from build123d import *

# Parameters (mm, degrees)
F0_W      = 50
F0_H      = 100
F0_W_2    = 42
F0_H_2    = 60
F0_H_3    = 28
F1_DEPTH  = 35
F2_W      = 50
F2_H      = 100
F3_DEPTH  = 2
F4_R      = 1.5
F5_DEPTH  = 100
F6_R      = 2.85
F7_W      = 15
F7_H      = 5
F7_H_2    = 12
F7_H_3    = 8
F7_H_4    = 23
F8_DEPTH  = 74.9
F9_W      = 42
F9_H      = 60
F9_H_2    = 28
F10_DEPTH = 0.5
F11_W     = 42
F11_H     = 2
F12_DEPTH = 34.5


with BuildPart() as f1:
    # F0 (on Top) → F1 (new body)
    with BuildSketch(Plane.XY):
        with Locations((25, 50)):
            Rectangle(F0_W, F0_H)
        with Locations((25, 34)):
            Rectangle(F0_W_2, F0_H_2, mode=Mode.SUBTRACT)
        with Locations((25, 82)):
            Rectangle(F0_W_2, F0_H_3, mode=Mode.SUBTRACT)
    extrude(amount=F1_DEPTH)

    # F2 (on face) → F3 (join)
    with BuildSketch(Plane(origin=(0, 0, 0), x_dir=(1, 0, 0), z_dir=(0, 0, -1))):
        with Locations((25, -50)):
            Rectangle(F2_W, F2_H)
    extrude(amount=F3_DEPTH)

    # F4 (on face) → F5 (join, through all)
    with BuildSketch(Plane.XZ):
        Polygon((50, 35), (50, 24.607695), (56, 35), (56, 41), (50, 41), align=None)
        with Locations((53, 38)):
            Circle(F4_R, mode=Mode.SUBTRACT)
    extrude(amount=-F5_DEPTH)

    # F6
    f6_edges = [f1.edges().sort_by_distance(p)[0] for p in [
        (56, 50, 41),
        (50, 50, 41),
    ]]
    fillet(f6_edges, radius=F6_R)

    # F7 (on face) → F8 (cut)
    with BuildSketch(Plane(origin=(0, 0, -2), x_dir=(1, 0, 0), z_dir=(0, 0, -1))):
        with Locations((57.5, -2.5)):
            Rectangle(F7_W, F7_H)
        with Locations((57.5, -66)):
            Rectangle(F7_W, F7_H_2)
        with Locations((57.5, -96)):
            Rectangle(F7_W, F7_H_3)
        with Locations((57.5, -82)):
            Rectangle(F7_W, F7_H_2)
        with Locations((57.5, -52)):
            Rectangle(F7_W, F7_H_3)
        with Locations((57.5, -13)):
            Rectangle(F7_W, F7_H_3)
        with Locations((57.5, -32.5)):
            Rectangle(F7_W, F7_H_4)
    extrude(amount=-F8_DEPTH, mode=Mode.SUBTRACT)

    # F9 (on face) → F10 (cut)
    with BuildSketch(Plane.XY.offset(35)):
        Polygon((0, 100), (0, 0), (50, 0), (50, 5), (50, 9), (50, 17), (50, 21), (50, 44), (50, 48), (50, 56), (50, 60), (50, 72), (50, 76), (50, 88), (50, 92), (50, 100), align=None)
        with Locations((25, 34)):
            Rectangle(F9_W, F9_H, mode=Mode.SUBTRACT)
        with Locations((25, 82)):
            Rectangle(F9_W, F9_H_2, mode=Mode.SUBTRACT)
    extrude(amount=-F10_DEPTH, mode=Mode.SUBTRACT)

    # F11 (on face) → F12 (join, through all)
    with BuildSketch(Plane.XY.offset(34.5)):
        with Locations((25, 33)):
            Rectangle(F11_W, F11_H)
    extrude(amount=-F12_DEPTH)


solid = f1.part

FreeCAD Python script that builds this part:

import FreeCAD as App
import Part
import Sketcher
Q = App.Units.Quantity


def edges_at(feature, points):
    """Names of the edges that pass closest to the given points."""
    edges = feature.Shape.Edges
    near = lambda p: min(range(len(edges)), key=lambda i: edges[i].distToShape(Part.Vertex(*p))[0])
    return sorted({f"Edge{near(p) + 1}" for p in points})

doc = App.newDocument("Part")
body = doc.addObject("PartDesign::Body", "Body")

sketch1 = body.newObject("Sketcher::SketchObject", "Sketch")
sketch1.AttachmentSupport = (doc.getObject("XY_Plane"), [""])
sketch1.MapMode = "FlatFace"
sketch1.addGeometry(Part.LineSegment(App.Vector(0, 100, 0), App.Vector(0, 0, 0)), False)
sketch1.addGeometry(Part.LineSegment(App.Vector(0, 0, 0), App.Vector(50, 0, 0)), False)
sketch1.addGeometry(Part.LineSegment(App.Vector(50, 0, 0), App.Vector(50, 100, 0)), False)
sketch1.addGeometry(Part.LineSegment(App.Vector(50, 100, 0), App.Vector(0, 100, 0)), False)
sketch1.addGeometry(Part.LineSegment(App.Vector(46, 4, 0), App.Vector(4, 4, 0)), False)
sketch1.addGeometry(Part.LineSegment(App.Vector(4, 4, 0), App.Vector(4, 64, 0)), False)
sketch1.addGeometry(Part.LineSegment(App.Vector(4, 64, 0), App.Vector(46, 64, 0)), False)
sketch1.addGeometry(Part.LineSegment(App.Vector(46, 64, 0), App.Vector(46, 4, 0)), False)
sketch1.addGeometry(Part.LineSegment(App.Vector(46, 68, 0), App.Vector(4, 68, 0)), False)
sketch1.addGeometry(Part.LineSegment(App.Vector(4, 68, 0), App.Vector(4, 96, 0)), False)
sketch1.addGeometry(Part.LineSegment(App.Vector(4, 96, 0), App.Vector(46, 96, 0)), False)
sketch1.addGeometry(Part.LineSegment(App.Vector(46, 96, 0), App.Vector(46, 68, 0)), False)
sketch1.addConstraint(Sketcher.Constraint("Coincident", 0, 2, 1, 1))
sketch1.addConstraint(Sketcher.Constraint("Coincident", 1, 2, 2, 1))
sketch1.addConstraint(Sketcher.Constraint("Coincident", 2, 2, 3, 1))
sketch1.addConstraint(Sketcher.Constraint("Coincident", 3, 2, 0, 1))
sketch1.addConstraint(Sketcher.Constraint("Coincident", 4, 2, 5, 1))
sketch1.addConstraint(Sketcher.Constraint("Coincident", 5, 2, 6, 1))
sketch1.addConstraint(Sketcher.Constraint("Coincident", 6, 2, 7, 1))
sketch1.addConstraint(Sketcher.Constraint("Coincident", 7, 2, 4, 1))
sketch1.addConstraint(Sketcher.Constraint("Coincident", 8, 2, 9, 1))
sketch1.addConstraint(Sketcher.Constraint("Coincident", 9, 2, 10, 1))
sketch1.addConstraint(Sketcher.Constraint("Coincident", 10, 2, 11, 1))
sketch1.addConstraint(Sketcher.Constraint("Coincident", 11, 2, 8, 1))
sketch1.addConstraint(Sketcher.Constraint("Vertical", 0))
sketch1.addConstraint(Sketcher.Constraint("Horizontal", 1))
sketch1.addConstraint(Sketcher.Constraint("Vertical", 2))
sketch1.addConstraint(Sketcher.Constraint("Horizontal", 3))
sketch1.addConstraint(Sketcher.Constraint("Horizontal", 4))
sketch1.addConstraint(Sketcher.Constraint("Vertical", 5))
sketch1.addConstraint(Sketcher.Constraint("Horizontal", 6))
sketch1.addConstraint(Sketcher.Constraint("Vertical", 7))
sketch1.addConstraint(Sketcher.Constraint("Horizontal", 8))
sketch1.addConstraint(Sketcher.Constraint("Vertical", 9))
sketch1.addConstraint(Sketcher.Constraint("Horizontal", 10))
sketch1.addConstraint(Sketcher.Constraint("Vertical", 11))
sketch1.addConstraint(Sketcher.Constraint("Coincident", 0, 2, -1, 1))
sketch1.addConstraint(Sketcher.Constraint("Vertical", 5, 2, 8, 2))
sketch1.addConstraint(Sketcher.Constraint("Vertical", 7, 2, 10, 2))
sketch1.addConstraint(Sketcher.Constraint("DistanceX", 1, 1, 1, 2, 50.0))
sketch1.addConstraint(Sketcher.Constraint("DistanceX", 4, 2, 4, 1, 42.0))
sketch1.addConstraint(Sketcher.Constraint("DistanceY", 0, 2, 0, 1, 100.0))
sketch1.addConstraint(Sketcher.Constraint("DistanceY", 5, 1, 5, 2, 60.0))
sketch1.addConstraint(Sketcher.Constraint("DistanceY", 9, 1, 9, 2, 28.0))
sketch1.addConstraint(Sketcher.Constraint("DistanceX", -1, 1, 4, 2, 4.0))
sketch1.addConstraint(Sketcher.Constraint("DistanceY", -1, 1, 4, 2, 4.0))
sketch1.addConstraint(Sketcher.Constraint("DistanceY", -1, 1, 8, 2, 68.0))
pad1 = body.newObject("PartDesign::Pad", "Pad")
pad1.Profile = sketch1
pad1.Length = 35

sketch2 = body.newObject("Sketcher::SketchObject", "Sketch001")
sketch2.AttachmentSupport = (doc.getObject("XY_Plane"), [""])
sketch2.MapMode = "FlatFace"
sketch2.addGeometry(Part.LineSegment(App.Vector(0, 0, 0), App.Vector(0, 100, 0)), False)
sketch2.addGeometry(Part.LineSegment(App.Vector(0, 100, 0), App.Vector(50, 100, 0)), False)
sketch2.addGeometry(Part.LineSegment(App.Vector(50, 100, 0), App.Vector(50, 0, 0)), False)
sketch2.addGeometry(Part.LineSegment(App.Vector(50, 0, 0), App.Vector(0, 0, 0)), False)
sketch2.addConstraint(Sketcher.Constraint("Coincident", 0, 2, 1, 1))
sketch2.addConstraint(Sketcher.Constraint("Coincident", 1, 2, 2, 1))
sketch2.addConstraint(Sketcher.Constraint("Coincident", 2, 2, 3, 1))
sketch2.addConstraint(Sketcher.Constraint("Coincident", 3, 2, 0, 1))
sketch2.addConstraint(Sketcher.Constraint("Vertical", 0))
sketch2.addConstraint(Sketcher.Constraint("Horizontal", 1))
sketch2.addConstraint(Sketcher.Constraint("Vertical", 2))
sketch2.addConstraint(Sketcher.Constraint("Horizontal", 3))
sketch2.addConstraint(Sketcher.Constraint("Coincident", 3, 2, -1, 1))
sketch2.addConstraint(Sketcher.Constraint("DistanceX", 1, 1, 1, 2, 50.0))
sketch2.addConstraint(Sketcher.Constraint("DistanceY", 0, 1, 0, 2, 100.0))
pad2 = body.newObject("PartDesign::Pad", "Pad001")
pad2.Profile = sketch2
pad2.Length = 2
pad2.Reversed = True

sketch3 = body.newObject("Sketcher::SketchObject", "Sketch002")
sketch3.AttachmentSupport = (doc.getObject("XZ_Plane"), [""])
sketch3.MapMode = "FlatFace"
sketch3.addGeometry(Part.LineSegment(App.Vector(50, 24.607695, 0), App.Vector(56, 35, 0)), False)
sketch3.addGeometry(Part.LineSegment(App.Vector(56, 35, 0), App.Vector(56, 41, 0)), False)
sketch3.addGeometry(Part.LineSegment(App.Vector(56, 41, 0), App.Vector(50, 41, 0)), False)
sketch3.addGeometry(Part.LineSegment(App.Vector(50, 41, 0), App.Vector(50, 24.607695, 0)), False)
sketch3.addGeometry(Part.Circle(App.Vector(53, 38, 0), App.Vector(0, 0, 1), 1.5), False)
sketch3.addConstraint(Sketcher.Constraint("Coincident", 0, 2, 1, 1))
sketch3.addConstraint(Sketcher.Constraint("Coincident", 1, 2, 2, 1))
sketch3.addConstraint(Sketcher.Constraint("Coincident", 2, 2, 3, 1))
sketch3.addConstraint(Sketcher.Constraint("Coincident", 3, 2, 0, 1))
sketch3.addConstraint(Sketcher.Constraint("Vertical", 1))
sketch3.addConstraint(Sketcher.Constraint("Horizontal", 2))
sketch3.addConstraint(Sketcher.Constraint("Vertical", 3))
sketch3.addConstraint(Sketcher.Constraint("Equal", 2, 1))
sketch3.addConstraint(Sketcher.Constraint("Diameter", 4, 3.0))
sketch3.addConstraint(Sketcher.Constraint("DistanceX", 2, 2, 2, 1, 6.0))
sketch3.addConstraint(Sketcher.Constraint("Angle", 0, Q("60 deg")))
sketch3.addConstraint(Sketcher.Constraint("DistanceX", -1, 1, 4, 3, 53.0))
sketch3.addConstraint(Sketcher.Constraint("DistanceY", -1, 1, 4, 3, 38.0))
sketch3.addConstraint(Sketcher.Constraint("DistanceX", -1, 1, 0, 2, 56.0))
sketch3.addConstraint(Sketcher.Constraint("DistanceY", -1, 1, 0, 2, 35.0))
pad3 = body.newObject("PartDesign::Pad", "Pad002")
pad3.Profile = sketch3
pad3.Length = 100
pad3.Reversed = True
doc.recompute()

fillet = body.newObject("PartDesign::Fillet", "Fillet")
fillet.Base = (pad3, edges_at(pad3, [(56, 50, 41), (50, 50, 41)]))
fillet.Radius = 2.85

sketch4 = body.newObject("Sketcher::SketchObject", "Sketch003")
sketch4.AttachmentSupport = (doc.getObject("XY_Plane"), [""])
sketch4.MapMode = "FlatFace"
sketch4.AttachmentOffset = App.Placement(App.Vector(0, 0, -2), App.Rotation())
sketch4.addGeometry(Part.LineSegment(App.Vector(50, 0, 0), App.Vector(50, 5, 0)), False)
sketch4.addGeometry(Part.LineSegment(App.Vector(50, 5, 0), App.Vector(65, 5, 0)), False)
sketch4.addGeometry(Part.LineSegment(App.Vector(65, 5, 0), App.Vector(65, 0, 0)), False)
sketch4.addGeometry(Part.LineSegment(App.Vector(65, 0, 0), App.Vector(50, 0, 0)), False)
sketch4.addGeometry(Part.LineSegment(App.Vector(50, 60, 0), App.Vector(50, 72, 0)), False)
sketch4.addGeometry(Part.LineSegment(App.Vector(50, 72, 0), App.Vector(65, 72, 0)), False)
sketch4.addGeometry(Part.LineSegment(App.Vector(65, 72, 0), App.Vector(65, 60, 0)), False)
sketch4.addGeometry(Part.LineSegment(App.Vector(65, 60, 0), App.Vector(50, 60, 0)), False)
sketch4.addGeometry(Part.LineSegment(App.Vector(50, 92, 0), App.Vector(50, 100, 0)), False)
sketch4.addGeometry(Part.LineSegment(App.Vector(50, 100, 0), App.Vector(65, 100, 0)), False)
sketch4.addGeometry(Part.LineSegment(App.Vector(65, 100, 0), App.Vector(65, 92, 0)), False)
sketch4.addGeometry(Part.LineSegment(App.Vector(65, 92, 0), App.Vector(50, 92, 0)), False)
sketch4.addGeometry(Part.LineSegment(App.Vector(50, 76, 0), App.Vector(50, 88, 0)), False)
sketch4.addGeometry(Part.LineSegment(App.Vector(50, 88, 0), App.Vector(65, 88, 0)), False)
sketch4.addGeometry(Part.LineSegment(App.Vector(65, 88, 0), App.Vector(65, 76, 0)), False)
sketch4.addGeometry(Part.LineSegment(App.Vector(65, 76, 0), App.Vector(50, 76, 0)), False)
sketch4.addGeometry(Part.LineSegment(App.Vector(50, 48, 0), App.Vector(50, 56, 0)), False)
sketch4.addGeometry(Part.LineSegment(App.Vector(50, 56, 0), App.Vector(65, 56, 0)), False)
sketch4.addGeometry(Part.LineSegment(App.Vector(65, 56, 0), App.Vector(65, 48, 0)), False)
sketch4.addGeometry(Part.LineSegment(App.Vector(65, 48, 0), App.Vector(50, 48, 0)), False)
sketch4.addGeometry(Part.LineSegment(App.Vector(50, 9, 0), App.Vector(50, 17, 0)), False)
sketch4.addGeometry(Part.LineSegment(App.Vector(50, 17, 0), App.Vector(65, 17, 0)), False)
sketch4.addGeometry(Part.LineSegment(App.Vector(65, 17, 0), App.Vector(65, 9, 0)), False)
sketch4.addGeometry(Part.LineSegment(App.Vector(65, 9, 0), App.Vector(50, 9, 0)), False)
sketch4.addGeometry(Part.LineSegment(App.Vector(50, 21, 0), App.Vector(50, 44, 0)), False)
sketch4.addGeometry(Part.LineSegment(App.Vector(50, 44, 0), App.Vector(65, 44, 0)), False)
sketch4.addGeometry(Part.LineSegment(App.Vector(65, 44, 0), App.Vector(65, 21, 0)), False)
sketch4.addGeometry(Part.LineSegment(App.Vector(65, 21, 0), App.Vector(50, 21, 0)), False)
sketch4.addConstraint(Sketcher.Constraint("Coincident", 0, 2, 1, 1))
sketch4.addConstraint(Sketcher.Constraint("Coincident", 1, 2, 2, 1))
sketch4.addConstraint(Sketcher.Constraint("Coincident", 2, 2, 3, 1))
sketch4.addConstraint(Sketcher.Constraint("Coincident", 3, 2, 0, 1))
sketch4.addConstraint(Sketcher.Constraint("Coincident", 4, 2, 5, 1))
sketch4.addConstraint(Sketcher.Constraint("Coincident", 5, 2, 6, 1))
sketch4.addConstraint(Sketcher.Constraint("Coincident", 6, 2, 7, 1))
sketch4.addConstraint(Sketcher.Constraint("Coincident", 7, 2, 4, 1))
sketch4.addConstraint(Sketcher.Constraint("Coincident", 8, 2, 9, 1))
sketch4.addConstraint(Sketcher.Constraint("Coincident", 9, 2, 10, 1))
sketch4.addConstraint(Sketcher.Constraint("Coincident", 10, 2, 11, 1))
sketch4.addConstraint(Sketcher.Constraint("Coincident", 11, 2, 8, 1))
sketch4.addConstraint(Sketcher.Constraint("Coincident", 12, 2, 13, 1))
sketch4.addConstraint(Sketcher.Constraint("Coincident", 13, 2, 14, 1))
sketch4.addConstraint(Sketcher.Constraint("Coincident", 14, 2, 15, 1))
sketch4.addConstraint(Sketcher.Constraint("Coincident", 15, 2, 12, 1))
sketch4.addConstraint(Sketcher.Constraint("Coincident", 16, 2, 17, 1))
sketch4.addConstraint(Sketcher.Constraint("Coincident", 17, 2, 18, 1))
sketch4.addConstraint(Sketcher.Constraint("Coincident", 18, 2, 19, 1))
sketch4.addConstraint(Sketcher.Constraint("Coincident", 19, 2, 16, 1))
sketch4.addConstraint(Sketcher.Constraint("Coincident", 20, 2, 21, 1))
sketch4.addConstraint(Sketcher.Constraint("Coincident", 21, 2, 22, 1))
sketch4.addConstraint(Sketcher.Constraint("Coincident", 22, 2, 23, 1))
sketch4.addConstraint(Sketcher.Constraint("Coincident", 23, 2, 20, 1))
sketch4.addConstraint(Sketcher.Constraint("Coincident", 24, 2, 25, 1))
sketch4.addConstraint(Sketcher.Constraint("Coincident", 25, 2, 26, 1))
sketch4.addConstraint(Sketcher.Constraint("Coincident", 26, 2, 27, 1))
sketch4.addConstraint(Sketcher.Constraint("Coincident", 27, 2, 24, 1))
sketch4.addConstraint(Sketcher.Constraint("Vertical", 0))
sketch4.addConstraint(Sketcher.Constraint("Horizontal", 1))
sketch4.addConstraint(Sketcher.Constraint("Vertical", 2))
sketch4.addConstraint(Sketcher.Constraint("Horizontal", 3))
sketch4.addConstraint(Sketcher.Constraint("Vertical", 4))
sketch4.addConstraint(Sketcher.Constraint("Horizontal", 5))
sketch4.addConstraint(Sketcher.Constraint("Vertical", 6))
sketch4.addConstraint(Sketcher.Constraint("Horizontal", 7))
sketch4.addConstraint(Sketcher.Constraint("Vertical", 8))
sketch4.addConstraint(Sketcher.Constraint("Horizontal", 9))
sketch4.addConstraint(Sketcher.Constraint("Vertical", 10))
sketch4.addConstraint(Sketcher.Constraint("Horizontal", 11))
sketch4.addConstraint(Sketcher.Constraint("Vertical", 12))
sketch4.addConstraint(Sketcher.Constraint("Horizontal", 13))
sketch4.addConstraint(Sketcher.Constraint("Vertical", 14))
sketch4.addConstraint(Sketcher.Constraint("Horizontal", 15))
sketch4.addConstraint(Sketcher.Constraint("Vertical", 16))
sketch4.addConstraint(Sketcher.Constraint("Horizontal", 17))
sketch4.addConstraint(Sketcher.Constraint("Vertical", 18))
sketch4.addConstraint(Sketcher.Constraint("Horizontal", 19))
sketch4.addConstraint(Sketcher.Constraint("Vertical", 20))
sketch4.addConstraint(Sketcher.Constraint("Horizontal", 21))
sketch4.addConstraint(Sketcher.Constraint("Vertical", 22))
sketch4.addConstraint(Sketcher.Constraint("Horizontal", 23))
sketch4.addConstraint(Sketcher.Constraint("Vertical", 24))
sketch4.addConstraint(Sketcher.Constraint("Horizontal", 25))
sketch4.addConstraint(Sketcher.Constraint("Vertical", 26))
sketch4.addConstraint(Sketcher.Constraint("Horizontal", 27))
sketch4.addConstraint(Sketcher.Constraint("PointOnObject", 2, 2, -1))
sketch4.addConstraint(Sketcher.Constraint("Vertical", 3, 2, 4, 2))
sketch4.addConstraint(Sketcher.Constraint("Vertical", 2, 2, 5, 2))
sketch4.addConstraint(Sketcher.Constraint("Vertical", 7, 2, 8, 2))
sketch4.addConstraint(Sketcher.Constraint("Vertical", 6, 2, 9, 2))
sketch4.addConstraint(Sketcher.Constraint("Vertical", 11, 2, 12, 2))
sketch4.addConstraint(Sketcher.Constraint("Vertical", 10, 2, 13, 2))
sketch4.addConstraint(Sketcher.Constraint("Vertical", 15, 2, 16, 2))
sketch4.addConstraint(Sketcher.Constraint("Vertical", 14, 2, 17, 2))
sketch4.addConstraint(Sketcher.Constraint("Vertical", 19, 2, 20, 2))
sketch4.addConstraint(Sketcher.Constraint("Vertical", 18, 2, 21, 2))
sketch4.addConstraint(Sketcher.Constraint("Vertical", 23, 2, 24, 2))
sketch4.addConstraint(Sketcher.Constraint("Vertical", 22, 2, 25, 2))
sketch4.addConstraint(Sketcher.Constraint("Equal", 6, 12))
sketch4.addConstraint(Sketcher.Constraint("Equal", 10, 16))
sketch4.addConstraint(Sketcher.Constraint("Equal", 18, 20))
sketch4.addConstraint(Sketcher.Constraint("DistanceX", 1, 1, 1, 2, 15.0))
sketch4.addConstraint(Sketcher.Constraint("DistanceY", 0, 1, 0, 2, 5.0))
sketch4.addConstraint(Sketcher.Constraint("DistanceY", 4, 1, 4, 2, 12.0))
sketch4.addConstraint(Sketcher.Constraint("DistanceY", 8, 1, 8, 2, 8.0))
sketch4.addConstraint(Sketcher.Constraint("DistanceY", 24, 1, 24, 2, 23.0))
sketch4.addConstraint(Sketcher.Constraint("DistanceX", -1, 1, 0, 2, 50.0))
sketch4.addConstraint(Sketcher.Constraint("DistanceY", -1, 1, 4, 2, 72.0))
sketch4.addConstraint(Sketcher.Constraint("DistanceY", -1, 1, 8, 2, 100.0))
sketch4.addConstraint(Sketcher.Constraint("DistanceY", -1, 1, 12, 2, 88.0))
sketch4.addConstraint(Sketcher.Constraint("DistanceY", -1, 1, 16, 2, 56.0))
sketch4.addConstraint(Sketcher.Constraint("DistanceY", -1, 1, 20, 2, 17.0))
sketch4.addConstraint(Sketcher.Constraint("DistanceY", -1, 1, 24, 2, 44.0))
pocket1 = body.newObject("PartDesign::Pocket", "Pocket")
pocket1.Profile = sketch4
pocket1.Length = 74.9
pocket1.Reversed = True

sketch5 = body.newObject("Sketcher::SketchObject", "Sketch004")
sketch5.AttachmentSupport = (doc.getObject("XY_Plane"), [""])
sketch5.MapMode = "FlatFace"
sketch5.AttachmentOffset = App.Placement(App.Vector(0, 0, 35), App.Rotation())
sketch5.addGeometry(Part.LineSegment(App.Vector(0, 100, 0), App.Vector(0, 0, 0)), False)
sketch5.addGeometry(Part.LineSegment(App.Vector(0, 0, 0), App.Vector(50, 0, 0)), False)
sketch5.addGeometry(Part.LineSegment(App.Vector(50, 0, 0), App.Vector(50, 100, 0)), False)
sketch5.addGeometry(Part.LineSegment(App.Vector(50, 100, 0), App.Vector(0, 100, 0)), False)
sketch5.addGeometry(Part.LineSegment(App.Vector(46, 4, 0), App.Vector(4, 4, 0)), False)
sketch5.addGeometry(Part.LineSegment(App.Vector(4, 4, 0), App.Vector(4, 64, 0)), False)
sketch5.addGeometry(Part.LineSegment(App.Vector(4, 64, 0), App.Vector(46, 64, 0)), False)
sketch5.addGeometry(Part.LineSegment(App.Vector(46, 64, 0), App.Vector(46, 4, 0)), False)
sketch5.addGeometry(Part.LineSegment(App.Vector(46, 68, 0), App.Vector(4, 68, 0)), False)
sketch5.addGeometry(Part.LineSegment(App.Vector(4, 68, 0), App.Vector(4, 96, 0)), False)
sketch5.addGeometry(Part.LineSegment(App.Vector(4, 96, 0), App.Vector(46, 96, 0)), False)
sketch5.addGeometry(Part.LineSegment(App.Vector(46, 96, 0), App.Vector(46, 68, 0)), False)
sketch5.addConstraint(Sketcher.Constraint("Coincident", 0, 2, 1, 1))
sketch5.addConstraint(Sketcher.Constraint("Coincident", 1, 2, 2, 1))
sketch5.addConstraint(Sketcher.Constraint("Coincident", 2, 2, 3, 1))
sketch5.addConstraint(Sketcher.Constraint("Coincident", 3, 2, 0, 1))
sketch5.addConstraint(Sketcher.Constraint("Coincident", 4, 2, 5, 1))
sketch5.addConstraint(Sketcher.Constraint("Coincident", 5, 2, 6, 1))
sketch5.addConstraint(Sketcher.Constraint("Coincident", 6, 2, 7, 1))
sketch5.addConstraint(Sketcher.Constraint("Coincident", 7, 2, 4, 1))
sketch5.addConstraint(Sketcher.Constraint("Coincident", 8, 2, 9, 1))
sketch5.addConstraint(Sketcher.Constraint("Coincident", 9, 2, 10, 1))
sketch5.addConstraint(Sketcher.Constraint("Coincident", 10, 2, 11, 1))
sketch5.addConstraint(Sketcher.Constraint("Coincident", 11, 2, 8, 1))
sketch5.addConstraint(Sketcher.Constraint("Vertical", 0))
sketch5.addConstraint(Sketcher.Constraint("Horizontal", 1))
sketch5.addConstraint(Sketcher.Constraint("Vertical", 2))
sketch5.addConstraint(Sketcher.Constraint("Horizontal", 3))
sketch5.addConstraint(Sketcher.Constraint("Horizontal", 4))
sketch5.addConstraint(Sketcher.Constraint("Vertical", 5))
sketch5.addConstraint(Sketcher.Constraint("Horizontal", 6))
sketch5.addConstraint(Sketcher.Constraint("Vertical", 7))
sketch5.addConstraint(Sketcher.Constraint("Horizontal", 8))
sketch5.addConstraint(Sketcher.Constraint("Vertical", 9))
sketch5.addConstraint(Sketcher.Constraint("Horizontal", 10))
sketch5.addConstraint(Sketcher.Constraint("Vertical", 11))
sketch5.addConstraint(Sketcher.Constraint("Coincident", 0, 2, -1, 1))
sketch5.addConstraint(Sketcher.Constraint("Vertical", 5, 2, 8, 2))
sketch5.addConstraint(Sketcher.Constraint("Vertical", 7, 2, 10, 2))
sketch5.addConstraint(Sketcher.Constraint("DistanceX", 1, 1, 1, 2, 50.0))
sketch5.addConstraint(Sketcher.Constraint("DistanceX", 4, 2, 4, 1, 42.0))
sketch5.addConstraint(Sketcher.Constraint("DistanceY", 0, 2, 0, 1, 100.0))
sketch5.addConstraint(Sketcher.Constraint("DistanceY", 5, 1, 5, 2, 60.0))
sketch5.addConstraint(Sketcher.Constraint("DistanceY", 9, 1, 9, 2, 28.0))
sketch5.addConstraint(Sketcher.Constraint("DistanceX", -1, 1, 4, 2, 4.0))
sketch5.addConstraint(Sketcher.Constraint("DistanceY", -1, 1, 4, 2, 4.0))
sketch5.addConstraint(Sketcher.Constraint("DistanceY", -1, 1, 8, 2, 68.0))
pocket2 = body.newObject("PartDesign::Pocket", "Pocket001")
pocket2.Profile = sketch5
pocket2.Length = 0.5

sketch6 = body.newObject("Sketcher::SketchObject", "Sketch005")
sketch6.AttachmentSupport = (doc.getObject("XY_Plane"), [""])
sketch6.MapMode = "FlatFace"
sketch6.AttachmentOffset = App.Placement(App.Vector(0, 0, 34.5), App.Rotation())
sketch6.addGeometry(Part.LineSegment(App.Vector(4, 34, 0), App.Vector(4, 32, 0)), False)
sketch6.addGeometry(Part.LineSegment(App.Vector(4, 32, 0), App.Vector(46, 32, 0)), False)
sketch6.addGeometry(Part.LineSegment(App.Vector(46, 32, 0), App.Vector(46, 34, 0)), False)
sketch6.addGeometry(Part.LineSegment(App.Vector(46, 34, 0), App.Vector(4, 34, 0)), False)
sketch6.addConstraint(Sketcher.Constraint("Coincident", 0, 2, 1, 1))
sketch6.addConstraint(Sketcher.Constraint("Coincident", 1, 2, 2, 1))
sketch6.addConstraint(Sketcher.Constraint("Coincident", 2, 2, 3, 1))
sketch6.addConstraint(Sketcher.Constraint("Coincident", 3, 2, 0, 1))
sketch6.addConstraint(Sketcher.Constraint("Vertical", 0))
sketch6.addConstraint(Sketcher.Constraint("Horizontal", 1))
sketch6.addConstraint(Sketcher.Constraint("Vertical", 2))
sketch6.addConstraint(Sketcher.Constraint("Horizontal", 3))
sketch6.addConstraint(Sketcher.Constraint("DistanceX", 1, 1, 1, 2, 42.0))
sketch6.addConstraint(Sketcher.Constraint("DistanceY", 0, 2, 0, 1, 2.0))
sketch6.addConstraint(Sketcher.Constraint("DistanceX", -1, 1, 0, 2, 4.0))
sketch6.addConstraint(Sketcher.Constraint("DistanceY", -1, 1, 0, 2, 32.0))
pad4 = body.newObject("PartDesign::Pad", "Pad003")
pad4.Profile = sketch6
pad4.Type = "UpToLast"
pad4.Reversed = True

doc.recompute()
